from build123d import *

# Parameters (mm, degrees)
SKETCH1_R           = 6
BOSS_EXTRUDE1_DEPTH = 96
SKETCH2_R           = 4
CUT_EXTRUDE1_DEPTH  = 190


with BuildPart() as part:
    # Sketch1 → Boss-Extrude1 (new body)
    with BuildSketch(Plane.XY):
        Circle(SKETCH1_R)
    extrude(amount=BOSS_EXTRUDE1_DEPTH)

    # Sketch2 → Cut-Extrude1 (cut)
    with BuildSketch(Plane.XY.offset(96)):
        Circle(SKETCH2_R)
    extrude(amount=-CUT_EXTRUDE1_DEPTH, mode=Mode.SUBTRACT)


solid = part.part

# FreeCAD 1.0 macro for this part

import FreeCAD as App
import Part
import Sketcher
from FreeCAD import Vector
Q = App.Units.Quantity

doc = App.newDocument("Part")
body = doc.addObject("PartDesign::Body", "Body")

sketch1 = body.newObject("Sketcher::SketchObject", "Sketch")
sketch1.AttachmentSupport = (doc.getObject("XY_Plane"), [""])
sketch1.MapMode = "FlatFace"
sketch1.addGeometry(Part.Circle(Vector(0, 0, 0), Vector(0, 0, 1), 6), False)
sketch1.addConstraint(Sketcher.Constraint("Coincident", 0, 3, -1, 1))
sketch1.addConstraint(Sketcher.Constraint("Diameter", 0, Q("12 mm")))
pad1 = body.newObject("PartDesign::Pad", "Pad")
pad1.Profile = sketch1
pad1.Length = 96

sketch2 = body.newObject("Sketcher::SketchObject", "Sketch001")
sketch2.AttachmentSupport = (doc.getObject("XY_Plane"), [""])
sketch2.MapMode = "FlatFace"
sketch2.AttachmentOffset = App.Placement(Vector(0, 0, 96), App.Rotation())
sketch2.addGeometry(Part.Circle(Vector(0, 0, 0), Vector(0, 0, 1), 4), False)
sketch2.addConstraint(Sketcher.Constraint("Coincident", 0, 3, -1, 1))
sketch2.addConstraint(Sketcher.Constraint("Diameter", 0, Q("8 mm")))
pocket1 = body.newObject("PartDesign::Pocket", "Pocket")
pocket1.Profile = sketch2
pocket1.Length = 190

doc.recompute()
